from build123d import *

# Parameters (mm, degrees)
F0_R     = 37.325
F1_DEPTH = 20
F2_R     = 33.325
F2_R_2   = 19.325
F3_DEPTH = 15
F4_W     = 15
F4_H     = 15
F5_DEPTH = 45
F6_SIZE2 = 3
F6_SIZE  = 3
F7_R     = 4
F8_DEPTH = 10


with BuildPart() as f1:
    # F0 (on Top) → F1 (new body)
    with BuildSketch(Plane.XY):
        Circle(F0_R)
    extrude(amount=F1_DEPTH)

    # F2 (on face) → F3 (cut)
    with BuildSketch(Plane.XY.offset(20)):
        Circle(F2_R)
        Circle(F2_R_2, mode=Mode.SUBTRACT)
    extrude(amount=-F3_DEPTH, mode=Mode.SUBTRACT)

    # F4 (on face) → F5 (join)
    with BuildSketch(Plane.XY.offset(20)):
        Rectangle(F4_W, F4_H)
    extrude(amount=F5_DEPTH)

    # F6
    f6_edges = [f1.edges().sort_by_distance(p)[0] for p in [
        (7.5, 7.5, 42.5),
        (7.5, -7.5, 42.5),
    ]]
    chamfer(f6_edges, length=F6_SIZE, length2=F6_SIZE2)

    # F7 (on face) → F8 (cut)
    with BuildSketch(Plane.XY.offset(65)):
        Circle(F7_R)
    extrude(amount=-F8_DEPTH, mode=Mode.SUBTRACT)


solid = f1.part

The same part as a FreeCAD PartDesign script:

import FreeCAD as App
import Part
import Sketcher
Q = App.Units.Quantity


def edges_at(feature, points):
    """Names of the edges that pass closest to the given points."""
    edges = feature.Shape.Edges
    near = lambda p: min(range(len(edges)), key=lambda i: edges[i].distToShape(Part.Vertex(*p))[0])
    return sorted({f"Edge{near(p) + 1}" for p in points})


def add_polygon(sketch, points):
    """Adds a closed chain of lines whose ends are joined by coincident constraints."""
    first, n = sketch.GeometryCount, len(points)
    for a, b in zip(points, points[1:] + points[:1]):
        sketch.addGeometry(Part.LineSegment(App.Vector(*a, 0), App.Vector(*b, 0)), False)
    for i in range(n):
        sketch.addConstraint(Sketcher.Constraint("Coincident", first + i, 2, first + (i + 1) % n, 1))

doc = App.newDocument("Part")
params = doc.addObject("Spreadsheet::Sheet", "Params")
for row, (alias, value) in enumerate([
    ("sketch1_diameter", "74.65 mm"),
    ("pad1_length", "20 mm"),
    ("sketch2_diameter", "66.65 mm"),
    ("sketch2_diameter2", "38.65 mm"),
    ("pocket1_length", "15 mm"),
    ("sketch3_width", "15 mm"),
    ("pad2_length", "45 mm"),
    ("chamfer_size", "3 mm"),
    ("chamfer_size2", "3 mm"),
    ("sketch4_diameter", "8 mm"),
    ("pocket2_length", "10 mm"),
], start=1):
    params.set(f"A{row}", alias)
    params.set(f"B{row}", "=" + value)
    params.setAlias(f"B{row}", alias)

body = doc.addObject("PartDesign::Body", "Body")

sketch1 = body.newObject("Sketcher::SketchObject", "Sketch")
sketch1.AttachmentSupport = (doc.getObject("XY_Plane"), [""])
sketch1.MapMode = "FlatFace"
sketch1.addGeometry(Part.Circle(App.Vector(0, 0, 0), App.Vector(0, 0, 1), 37), False)
sketch1.addConstraint([
    Sketcher.Constraint("Coincident", 0, 3, -1, 1),
    Sketcher.Constraint("Diameter", 0, Q("74.65 mm")),
])
sketch1.setExpression("Constraints[1]", "Params.sketch1_diameter")
pad1 = body.newObject("PartDesign::Pad", "Pad")
pad1.Profile = sketch1
pad1.setExpression("Length", "Params.pad1_length")

sketch2 = body.newObject("Sketcher::SketchObject", "Sketch001")
sketch2.AttachmentSupport = (doc.getObject("XY_Plane"), [""])
sketch2.MapMode = "FlatFace"
sketch2.AttachmentOffset = App.Placement(App.Vector(0, 0, 20), App.Rotation())
sketch2.addGeometry([
    Part.Circle(App.Vector(0, 0, 0), App.Vector(0, 0, 1), 33),
    Part.Circle(App.Vector(0, 0, 0), App.Vector(0, 0, 1), 19),
], False)
sketch2.addConstraint([
    Sketcher.Constraint("Coincident", 0, 3, -1, 1),
    Sketcher.Constraint("Coincident", 1, 3, -1, 1),
    Sketcher.Constraint("Diameter", 0, Q("66.65 mm")),
    Sketcher.Constraint("Diameter", 1, Q("38.65 mm")),
])
sketch2.setExpression("Constraints[2]", "Params.sketch2_diameter")
sketch2.setExpression("Constraints[3]", "Params.sketch2_diameter2")
pocket1 = body.newObject("PartDesign::Pocket", "Pocket")
pocket1.Profile = sketch2
pocket1.setExpression("Length", "Params.pocket1_length")

sketch3 = body.newObject("Sketcher::SketchObject", "Sketch002")
sketch3.AttachmentSupport = (doc.getObject("XY_Plane"), [""])
sketch3.MapMode = "FlatFace"
sketch3.AttachmentOffset = App.Placement(App.Vector(0, 0, 20), App.Rotation())
add_polygon(sketch3, [(-8, 8), (-8, -8), (8, -8), (8, 8)])
sketch3.addConstraint([
    Sketcher.Constraint("Vertical", 0),
    Sketcher.Constraint("Horizontal", 1),
    Sketcher.Constraint("Vertical", 2),
    Sketcher.Constraint("Horizontal", 3),
    Sketcher.Constraint("Symmetric", 0, 2, 2, 2, -1, 1),
    Sketcher.Constraint("Equal", 3, 0),
    Sketcher.Constraint("DistanceX", 1, 1, 1, 2, Q("15 mm")),
])
sketch3.setExpression("Constraints[10]", "Params.sketch3_width")
pad2 = body.newObject("PartDesign::Pad", "Pad001")
pad2.Profile = sketch3
pad2.setExpression("Length", "Params.pad2_length")
doc.recompute()

chamfer = body.newObject("PartDesign::Chamfer", "Chamfer")
chamfer.Base = (pad2, edges_at(pad2, [(7.5, 7.5, 42.5), (7.5, -7.5, 42.5)]))
chamfer.ChamferType = "Two distances"
chamfer.setExpression("Size", "Params.chamfer_size")
chamfer.setExpression("Size2", "Params.chamfer_size2")

sketch4 = body.newObject("Sketcher::SketchObject", "Sketch003")
sketch4.AttachmentSupport = (doc.getObject("XY_Plane"), [""])
sketch4.MapMode = "FlatFace"
sketch4.AttachmentOffset = App.Placement(App.Vector(0, 0, 65), App.Rotation())
sketch4.addGeometry(Part.Circle(App.Vector(0, 0, 0), App.Vector(0, 0, 1), 4), False)
sketch4.addConstraint([
    Sketcher.Constraint("Coincident", 0, 3, -1, 1),
    Sketcher.Constraint("Diameter", 0, Q("8 mm")),
])
sketch4.setExpression("Constraints[1]", "Params.sketch4_diameter")
pocket2 = body.newObject("PartDesign::Pocket", "Pocket001")
pocket2.Profile = sketch4
pocket2.setExpression("Length", "Params.pocket2_length")

doc.recompute()
